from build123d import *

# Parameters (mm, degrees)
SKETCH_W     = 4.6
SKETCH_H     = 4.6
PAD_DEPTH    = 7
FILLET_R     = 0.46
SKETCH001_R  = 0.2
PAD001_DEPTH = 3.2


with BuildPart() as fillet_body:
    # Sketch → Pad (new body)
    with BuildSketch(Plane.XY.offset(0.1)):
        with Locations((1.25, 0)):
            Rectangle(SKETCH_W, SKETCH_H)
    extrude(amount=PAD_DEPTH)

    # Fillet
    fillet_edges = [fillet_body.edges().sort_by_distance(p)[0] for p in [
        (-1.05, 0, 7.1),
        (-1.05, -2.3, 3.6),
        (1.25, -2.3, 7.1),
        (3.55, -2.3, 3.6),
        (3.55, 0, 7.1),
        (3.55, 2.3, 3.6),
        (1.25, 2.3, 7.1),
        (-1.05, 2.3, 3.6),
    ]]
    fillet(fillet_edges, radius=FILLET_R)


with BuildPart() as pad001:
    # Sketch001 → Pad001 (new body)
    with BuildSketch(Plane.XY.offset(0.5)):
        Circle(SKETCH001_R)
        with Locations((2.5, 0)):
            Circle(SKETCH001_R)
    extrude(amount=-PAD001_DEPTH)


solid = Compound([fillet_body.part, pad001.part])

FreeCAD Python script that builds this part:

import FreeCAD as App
import Part
import Sketcher
from FreeCAD import Vector
Q = App.Units.Quantity


def edges_at(feature, points):
    """Names of the edges that pass closest to the given points."""
    edges = feature.Shape.Edges
    near = lambda p: min(range(len(edges)), key=lambda i: edges[i].distToShape(Part.Vertex(*p))[0])
    return sorted({f"Edge{near(p) + 1}" for p in points})

doc = App.newDocument("Part")
body = doc.addObject("PartDesign::Body", "Body")

sketch1 = body.newObject("Sketcher::SketchObject", "Sketch")
sketch1.AttachmentSupport = (doc.getObject("XY_Plane"), [""])
sketch1.MapMode = "FlatFace"
sketch1.AttachmentOffset = App.Placement(Vector(0, 0, 0.1), App.Rotation())
sketch1.addGeometry(Part.LineSegment(Vector(-1.1, 2.3, 0), Vector(-1.1, -2.3, 0)), False)
sketch1.addGeometry(Part.LineSegment(Vector(-1.1, -2.3, 0), Vector(3.5, -2.3, 0)), False)
sketch1.addGeometry(Part.LineSegment(Vector(3.5, -2.3, 0), Vector(3.5, 2.3, 0)), False)
sketch1.addGeometry(Part.LineSegment(Vector(3.5, 2.3, 0), Vector(-1.1, 2.3, 0)), False)
sketch1.addConstraint(Sketcher.Constraint("Coincident", 0, 2, 1, 1))
sketch1.addConstraint(Sketcher.Constraint("Coincident", 1, 2, 2, 1))
sketch1.addConstraint(Sketcher.Constraint("Coincident", 2, 2, 3, 1))
sketch1.addConstraint(Sketcher.Constraint("Coincident", 3, 2, 0, 1))
sketch1.addConstraint(Sketcher.Constraint("Vertical", 0))
sketch1.addConstraint(Sketcher.Constraint("Horizontal", 1))
sketch1.addConstraint(Sketcher.Constraint("Vertical", 2))
sketch1.addConstraint(Sketcher.Constraint("Horizontal", 3))
sketch1.addConstraint(Sketcher.Constraint("Equal", 3, 0))
sketch1.addConstraint(Sketcher.Constraint("DistanceX", 1, 1, 1, 2, Q("4.6 mm")))
sketch1.addConstraint(Sketcher.Constraint("DistanceY", 0, 2, -1, 1, Q("2.3 mm")))
sketch1.addConstraint(Sketcher.Constraint("DistanceX", 0, 2, -1, 1, Q("1.05 mm")))
pad1 = body.newObject("PartDesign::Pad", "Pad")
pad1.Profile = sketch1
pad1.Length = 7
doc.recompute()

fillet = body.newObject("PartDesign::Fillet", "Fillet")
fillet.Base = (pad1, edges_at(pad1, [
    (-1.05, 0, 7.1),
    (-1.05, -2.3, 3.6),
    (1.25, -2.3, 7.1),
    (3.55, -2.3, 3.6),
    (3.55, 0, 7.1),
    (3.55, 2.3, 3.6),
    (1.25, 2.3, 7.1),
    (-1.05, 2.3, 3.6),
]))
fillet.Radius = 0.46
body2 = doc.addObject("PartDesign::Body", "Body001")
body2.AllowCompound = True

sketch2 = body2.newObject("Sketcher::SketchObject", "Sketch001")
sketch2.AttachmentSupport = (doc.getObject("XY_Plane001"), [""])
sketch2.MapMode = "FlatFace"
sketch2.AttachmentOffset = App.Placement(Vector(0, 0, 0.5), App.Rotation())
sketch2.addGeometry(Part.Circle(Vector(0, 0, 0), Vector(0, 0, 1), 0.2), False)
sketch2.addGeometry(Part.Circle(Vector(2.5, 0, 0), Vector(0, 0, 1), 0.2), False)
sketch2.addConstraint(Sketcher.Constraint("Coincident", 0, 3, -1, 1))
sketch2.addConstraint(Sketcher.Constraint("Equal", 0, 1))
sketch2.addConstraint(Sketcher.Constraint("PointOnObject", 1, 3, -1))
sketch2.addConstraint(Sketcher.Constraint("Diameter", 0, Q("0.4 mm")))
sketch2.addConstraint(Sketcher.Constraint("DistanceX", -1, 1, 1, 3, Q("2.5 mm")))
pad2 = body2.newObject("PartDesign::Pad", "Pad001")
pad2.Profile = sketch2
pad2.Length = 3.2
pad2.Reversed = True

doc.recompute()
